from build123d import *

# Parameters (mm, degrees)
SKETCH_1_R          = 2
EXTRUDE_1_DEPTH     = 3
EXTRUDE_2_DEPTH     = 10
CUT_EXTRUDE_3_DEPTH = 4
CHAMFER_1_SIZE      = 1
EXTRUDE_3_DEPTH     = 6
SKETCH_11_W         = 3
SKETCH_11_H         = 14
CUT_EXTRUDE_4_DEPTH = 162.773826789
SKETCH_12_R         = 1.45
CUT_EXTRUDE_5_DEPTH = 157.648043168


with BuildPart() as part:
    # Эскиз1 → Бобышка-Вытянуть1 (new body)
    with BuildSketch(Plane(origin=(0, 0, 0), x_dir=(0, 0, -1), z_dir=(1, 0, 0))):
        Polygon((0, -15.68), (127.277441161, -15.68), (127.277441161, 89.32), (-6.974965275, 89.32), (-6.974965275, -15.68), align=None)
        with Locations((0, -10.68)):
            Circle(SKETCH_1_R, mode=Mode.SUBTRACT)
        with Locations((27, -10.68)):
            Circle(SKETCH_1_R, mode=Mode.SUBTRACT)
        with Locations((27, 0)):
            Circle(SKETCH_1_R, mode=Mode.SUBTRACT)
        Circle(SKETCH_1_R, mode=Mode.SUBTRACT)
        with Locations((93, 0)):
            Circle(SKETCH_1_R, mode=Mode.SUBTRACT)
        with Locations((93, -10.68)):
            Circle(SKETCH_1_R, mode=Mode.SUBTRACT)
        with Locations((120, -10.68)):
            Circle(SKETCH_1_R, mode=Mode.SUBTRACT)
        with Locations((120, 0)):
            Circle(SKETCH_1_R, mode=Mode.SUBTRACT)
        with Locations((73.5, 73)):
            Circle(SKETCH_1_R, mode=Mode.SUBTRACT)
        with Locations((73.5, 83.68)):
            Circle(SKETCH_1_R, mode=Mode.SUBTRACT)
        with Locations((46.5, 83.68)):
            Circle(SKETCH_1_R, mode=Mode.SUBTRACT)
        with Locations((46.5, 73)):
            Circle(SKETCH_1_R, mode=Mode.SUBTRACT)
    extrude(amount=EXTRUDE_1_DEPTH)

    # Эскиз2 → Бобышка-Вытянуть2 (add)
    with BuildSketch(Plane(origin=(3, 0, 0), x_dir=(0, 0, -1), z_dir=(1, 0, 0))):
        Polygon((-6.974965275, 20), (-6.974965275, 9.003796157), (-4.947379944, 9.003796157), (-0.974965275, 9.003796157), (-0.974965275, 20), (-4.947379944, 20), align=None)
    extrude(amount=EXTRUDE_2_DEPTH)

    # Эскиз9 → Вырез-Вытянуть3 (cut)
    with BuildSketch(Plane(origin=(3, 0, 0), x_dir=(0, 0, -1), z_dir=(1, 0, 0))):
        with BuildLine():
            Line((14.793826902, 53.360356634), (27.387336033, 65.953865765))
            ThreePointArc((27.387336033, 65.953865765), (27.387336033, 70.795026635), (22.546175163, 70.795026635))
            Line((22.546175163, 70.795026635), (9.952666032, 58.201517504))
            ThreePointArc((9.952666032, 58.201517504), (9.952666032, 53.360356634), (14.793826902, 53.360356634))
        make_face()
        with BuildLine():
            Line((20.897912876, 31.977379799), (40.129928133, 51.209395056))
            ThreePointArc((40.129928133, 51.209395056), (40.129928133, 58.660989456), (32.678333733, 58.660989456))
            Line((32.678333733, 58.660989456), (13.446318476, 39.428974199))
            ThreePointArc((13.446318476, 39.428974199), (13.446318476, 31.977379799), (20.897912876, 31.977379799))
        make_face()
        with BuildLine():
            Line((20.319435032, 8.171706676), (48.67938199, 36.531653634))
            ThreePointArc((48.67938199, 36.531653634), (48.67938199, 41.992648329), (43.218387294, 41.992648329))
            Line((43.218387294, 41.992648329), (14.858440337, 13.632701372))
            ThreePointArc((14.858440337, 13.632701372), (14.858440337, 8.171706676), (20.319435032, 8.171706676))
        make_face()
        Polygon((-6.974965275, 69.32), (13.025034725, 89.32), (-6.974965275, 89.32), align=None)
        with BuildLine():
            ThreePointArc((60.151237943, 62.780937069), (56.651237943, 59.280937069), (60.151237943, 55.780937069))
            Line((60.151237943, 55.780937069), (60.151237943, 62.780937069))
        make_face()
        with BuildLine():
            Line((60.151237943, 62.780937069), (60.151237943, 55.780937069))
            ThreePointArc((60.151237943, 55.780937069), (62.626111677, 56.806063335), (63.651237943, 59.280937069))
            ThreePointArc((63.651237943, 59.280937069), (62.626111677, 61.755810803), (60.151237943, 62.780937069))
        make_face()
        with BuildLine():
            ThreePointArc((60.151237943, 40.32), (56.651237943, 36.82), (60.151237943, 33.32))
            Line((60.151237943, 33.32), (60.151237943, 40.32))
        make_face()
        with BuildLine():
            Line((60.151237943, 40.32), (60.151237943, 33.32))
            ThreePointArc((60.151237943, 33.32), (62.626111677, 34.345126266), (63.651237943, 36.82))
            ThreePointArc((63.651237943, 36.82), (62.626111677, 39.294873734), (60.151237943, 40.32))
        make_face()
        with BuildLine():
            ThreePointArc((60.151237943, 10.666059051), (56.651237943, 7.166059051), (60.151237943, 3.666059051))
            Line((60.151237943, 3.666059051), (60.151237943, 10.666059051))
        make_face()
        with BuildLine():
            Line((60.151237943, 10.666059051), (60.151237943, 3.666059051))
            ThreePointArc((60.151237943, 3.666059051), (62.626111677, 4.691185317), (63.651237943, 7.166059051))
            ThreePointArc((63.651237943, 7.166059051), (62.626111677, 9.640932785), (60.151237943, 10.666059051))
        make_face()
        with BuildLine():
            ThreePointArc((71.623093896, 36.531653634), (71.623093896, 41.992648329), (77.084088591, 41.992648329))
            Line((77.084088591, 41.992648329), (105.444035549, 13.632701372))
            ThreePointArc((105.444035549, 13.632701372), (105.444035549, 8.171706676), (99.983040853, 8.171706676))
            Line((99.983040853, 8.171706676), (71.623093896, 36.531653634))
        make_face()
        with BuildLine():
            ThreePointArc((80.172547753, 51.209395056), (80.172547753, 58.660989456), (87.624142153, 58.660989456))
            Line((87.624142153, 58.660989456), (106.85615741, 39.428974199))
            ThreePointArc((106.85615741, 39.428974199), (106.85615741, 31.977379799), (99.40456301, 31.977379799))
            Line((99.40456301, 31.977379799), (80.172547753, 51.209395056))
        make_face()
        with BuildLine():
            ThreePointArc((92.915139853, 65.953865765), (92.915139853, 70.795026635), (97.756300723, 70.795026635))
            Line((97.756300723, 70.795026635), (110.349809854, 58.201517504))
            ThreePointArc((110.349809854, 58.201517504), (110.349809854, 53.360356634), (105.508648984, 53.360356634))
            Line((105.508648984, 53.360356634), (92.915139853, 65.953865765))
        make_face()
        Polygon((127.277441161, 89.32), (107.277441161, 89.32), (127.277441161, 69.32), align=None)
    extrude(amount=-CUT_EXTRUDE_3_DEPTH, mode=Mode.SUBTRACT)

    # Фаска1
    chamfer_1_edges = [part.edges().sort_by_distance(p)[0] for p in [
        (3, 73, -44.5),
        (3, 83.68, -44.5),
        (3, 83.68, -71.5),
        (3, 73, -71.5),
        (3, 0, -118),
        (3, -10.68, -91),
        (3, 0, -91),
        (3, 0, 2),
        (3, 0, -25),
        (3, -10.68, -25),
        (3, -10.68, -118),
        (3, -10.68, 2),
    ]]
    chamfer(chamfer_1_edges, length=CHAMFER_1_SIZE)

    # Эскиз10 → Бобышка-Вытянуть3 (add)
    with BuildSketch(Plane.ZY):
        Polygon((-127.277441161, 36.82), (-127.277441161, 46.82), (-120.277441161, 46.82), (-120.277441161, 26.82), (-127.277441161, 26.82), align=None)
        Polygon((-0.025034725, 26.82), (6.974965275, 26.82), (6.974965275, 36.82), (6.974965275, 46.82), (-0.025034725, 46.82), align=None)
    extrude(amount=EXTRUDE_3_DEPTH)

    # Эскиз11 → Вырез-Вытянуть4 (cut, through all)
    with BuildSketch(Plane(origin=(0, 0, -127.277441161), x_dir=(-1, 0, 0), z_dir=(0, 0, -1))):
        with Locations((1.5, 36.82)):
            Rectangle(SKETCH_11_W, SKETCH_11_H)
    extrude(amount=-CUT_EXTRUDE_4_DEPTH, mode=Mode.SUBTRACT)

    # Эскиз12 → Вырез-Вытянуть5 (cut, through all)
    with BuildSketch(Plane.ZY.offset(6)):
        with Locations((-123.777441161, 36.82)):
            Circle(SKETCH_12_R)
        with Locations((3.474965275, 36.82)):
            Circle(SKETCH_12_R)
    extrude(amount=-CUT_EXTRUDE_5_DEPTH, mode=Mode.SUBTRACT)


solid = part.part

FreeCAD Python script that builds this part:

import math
import FreeCAD as App
import Part
import Sketcher
from FreeCAD import Vector
Q = App.Units.Quantity


def edges_at(feature, points):
    """Names of the edges that pass closest to the given points."""
    edges = feature.Shape.Edges
    near = lambda p: min(range(len(edges)), key=lambda i: edges[i].distToShape(Part.Vertex(*p))[0])
    return sorted({f"Edge{near(p) + 1}" for p in points})

doc = App.newDocument("Part")
body = doc.addObject("PartDesign::Body", "Body")

# Sketch on YZ plane
sketch1 = body.newObject("Sketcher::SketchObject", "Sketch")
sketch1.AttachmentSupport = (doc.getObject("YZ_Plane"), [""])
sketch1.MapMode = "FlatFace"
sketch1.addGeometry([
    Part.LineSegment(Vector(-15.7, -127.3, 0), Vector(89.3, -127.3, 0)),  # 0
    Part.LineSegment(Vector(89.3, -127.3, 0), Vector(89.3, 7, 0)),  # 1
    Part.LineSegment(Vector(89.3, 7, 0), Vector(-15.7, 7, 0)),  # 2
    Part.LineSegment(Vector(-15.7, 7, 0), Vector(-15.7, -127.3, 0)),  # 3
    Part.Circle(Vector(-10.7, 0, 0), Vector(0, 0, 1), 2),  # 4
    Part.Circle(Vector(-10.7, -27, 0), Vector(0, 0, 1), 2),  # 5
    Part.Circle(Vector(0, 0, 0), Vector(0, 0, 1), 2),  # 6
    Part.Circle(Vector(0, -27, 0), Vector(0, 0, 1), 2),  # 7
    Part.Circle(Vector(-10.7, -93, 0), Vector(0, 0, 1), 2),  # 8
    Part.Circle(Vector(-10.7, -120, 0), Vector(0, 0, 1), 2),  # 9
    Part.Circle(Vector(0, -93, 0), Vector(0, 0, 1), 2),  # 10
    Part.Circle(Vector(0, -120, 0), Vector(0, 0, 1), 2),  # 11
    Part.Circle(Vector(73, -46.5, 0), Vector(0, 0, 1), 2),  # 12
    Part.Circle(Vector(83.7, -46.5, 0), Vector(0, 0, 1), 2),  # 13
    Part.Circle(Vector(73, -73.5, 0), Vector(0, 0, 1), 2),  # 14
    Part.Circle(Vector(83.7, -73.5, 0), Vector(0, 0, 1), 2),  # 15
], False)
sketch1.addConstraint([
    Sketcher.Constraint("Coincident", 0, 2, 1, 1),
    Sketcher.Constraint("Coincident", 1, 2, 2, 1),
    Sketcher.Constraint("Coincident", 2, 2, 3, 1),
    Sketcher.Constraint("Coincident", 3, 2, 0, 1),
    Sketcher.Constraint("Horizontal", 0),
    Sketcher.Constraint("Vertical", 1),
    Sketcher.Constraint("Horizontal", 2),
    Sketcher.Constraint("Vertical", 3),
    Sketcher.Constraint("Coincident", 6, 3, -1, 1),
    Sketcher.Constraint("Equal", 4, 5),
    Sketcher.Constraint("Equal", 5, 6),
    Sketcher.Constraint("Equal", 6, 7),
    Sketcher.Constraint("Equal", 7, 8),
    Sketcher.Constraint("Equal", 8, 9),
    Sketcher.Constraint("Equal", 9, 10),
    Sketcher.Constraint("Equal", 10, 11),
    Sketcher.Constraint("Equal", 11, 12),
    Sketcher.Constraint("Equal", 12, 13),
    Sketcher.Constraint("Equal", 13, 14),
    Sketcher.Constraint("Equal", 14, 15),
    Sketcher.Constraint("PointOnObject", 4, 3, -1),
    Sketcher.Constraint("PointOnObject", 7, 3, -2),
    Sketcher.Constraint("PointOnObject", 10, 3, -2),
    Sketcher.Constraint("PointOnObject", 11, 3, -2),
    Sketcher.Constraint("Horizontal", 5, 3, 7, 3),
    Sketcher.Constraint("Horizontal", 8, 3, 10, 3),
    Sketcher.Constraint("Horizontal", 9, 3, 11, 3),
    Sketcher.Constraint("Horizontal", 12, 3, 13, 3),
    Sketcher.Constraint("Horizontal", 14, 3, 15, 3),
    Sketcher.Constraint("Vertical", 4, 3, 5, 3),
    Sketcher.Constraint("Vertical", 5, 3, 8, 3),
    Sketcher.Constraint("Vertical", 8, 3, 9, 3),
    Sketcher.Constraint("Vertical", 12, 3, 14, 3),
    Sketcher.Constraint("Vertical", 13, 3, 15, 3),
    Sketcher.Constraint("Diameter", 4, Q("4 mm")),
    Sketcher.Constraint("DistanceX", 0, 1, 0, 2, Q("105 mm")),
    Sketcher.Constraint("DistanceY", 5, 3, -1, 1, Q("27 mm")),
    Sketcher.Constraint("DistanceY", 8, 3, -1, 1, Q("93 mm")),
    Sketcher.Constraint("DistanceY", 9, 3, -1, 1, Q("120 mm")),
    Sketcher.Constraint("DistanceX", -1, 1, 12, 3, Q("73 mm")),
    Sketcher.Constraint("DistanceY", 14, 3, 12, 3, Q("27 mm")),
    Sketcher.Constraint("DistanceX", 2, 2, 4, 3, Q("5 mm")),
    Sketcher.Constraint("DistanceY", 12, 3, -1, 1, Q("46.5 mm")),
    Sketcher.Constraint("DistanceX", 4, 3, -1, 1, Q("10.68 mm")),
    Sketcher.Constraint("DistanceX", -1, 1, 13, 3, Q("83.68 mm")),
    Sketcher.Constraint("DistanceY", 1, 1, 1, 2, Q("134.252406 mm")),
    Sketcher.Constraint("DistanceY", 0, 2, -1, 1, Q("127.277441 mm")),
])
pad1 = body.newObject("PartDesign::Pad", "Pad")
pad1.Profile = sketch1
pad1.Length = 3

# Sketch on YZ plane
sketch2 = body.newObject("Sketcher::SketchObject", "Sketch001")
sketch2.AttachmentSupport = (doc.getObject("YZ_Plane"), [""])
sketch2.MapMode = "FlatFace"
sketch2.AttachmentOffset = App.Placement(Vector(0, 0, 3), App.Rotation())
sketch2.addGeometry([
    Part.LineSegment(Vector(20, 7, 0), Vector(9, 7, 0)),
    Part.LineSegment(Vector(9, 7, 0), Vector(9, 1, 0)),
    Part.LineSegment(Vector(9, 1, 0), Vector(20, 1, 0)),
    Part.LineSegment(Vector(20, 1, 0), Vector(20, 7, 0)),
], False)
sketch2.addConstraint([
    Sketcher.Constraint("Coincident", 0, 2, 1, 1),
    Sketcher.Constraint("Coincident", 1, 2, 2, 1),
    Sketcher.Constraint("Coincident", 2, 2, 3, 1),
    Sketcher.Constraint("Coincident", 3, 2, 0, 1),
    Sketcher.Constraint("Horizontal", 0),
    Sketcher.Constraint("Vertical", 1),
    Sketcher.Constraint("Horizontal", 2),
    Sketcher.Constraint("Vertical", 3),
    Sketcher.Constraint("DistanceY", 1, 2, 1, 1, Q("6 mm")),
    Sketcher.Constraint("DistanceX", -1, 1, 2, 2, Q("20 mm")),
    Sketcher.Constraint("DistanceX", 0, 2, 0, 1, Q("10.996204 mm")),
    Sketcher.Constraint("DistanceY", -1, 1, 0, 2, Q("6.974965 mm")),
])
pad2 = body.newObject("PartDesign::Pad", "Pad001")
pad2.Profile = sketch2
pad2.Length = 10

# Sketch on YZ plane
sketch3 = body.newObject("Sketcher::SketchObject", "Sketch002")
sketch3.AttachmentSupport = (doc.getObject("YZ_Plane"), [""])
sketch3.MapMode = "FlatFace"
sketch3.AttachmentOffset = App.Placement(Vector(0, 0, 3), App.Rotation())
sketch3.addGeometry([
    Part.LineSegment(Vector(53.4, -14.8, 0), Vector(66, -27.4, 0)),  # 0
    Part.ArcOfCircle(Part.Circle(Vector(68.4, -25, 0), Vector(0, 0, 1), 3.4), math.radians(-135), math.radians(45)),  # 1
    Part.LineSegment(Vector(70.8, -22.5, 0), Vector(58.2, -10, 0)),  # 2
    Part.ArcOfCircle(Part.Circle(Vector(55.8, -12.4, 0), Vector(0, 0, 1), 3.4), math.radians(45), math.radians(225)),  # 3
    Part.LineSegment(Vector(32, -20.9, 0), Vector(51.2, -40.1, 0)),  # 4
    Part.ArcOfCircle(Part.Circle(Vector(54.9, -36.4, 0), Vector(0, 0, 1), 5.3), math.radians(-135), math.radians(45)),  # 5
    Part.LineSegment(Vector(58.7, -32.7, 0), Vector(39.4, -13.4, 0)),  # 6
    Part.ArcOfCircle(Part.Circle(Vector(35.7, -17.2, 0), Vector(0, 0, 1), 5.3), math.radians(45), math.radians(225)),  # 7
    Part.LineSegment(Vector(8.2, -20.3, 0), Vector(36.5, -48.7, 0)),  # 8
    Part.ArcOfCircle(Part.Circle(Vector(39.3, -45.9, 0), Vector(0, 0, 1), 3.9), math.radians(-135), math.radians(45)),  # 9
    Part.LineSegment(Vector(42, -43.2, 0), Vector(13.6, -14.9, 0)),  # 10
    Part.ArcOfCircle(Part.Circle(Vector(10.9, -17.6, 0), Vector(0, 0, 1), 3.9), math.radians(45), math.radians(225)),  # 11
    Part.LineSegment(Vector(69.3, 7, 0), Vector(89.3, -13, 0)),  # 12
    Part.LineSegment(Vector(89.3, -13, 0), Vector(89.3, 7, 0)),  # 13
    Part.LineSegment(Vector(89.3, 7, 0), Vector(69.3, 7, 0)),  # 14
    Part.ArcOfCircle(Part.Circle(Vector(59.3, -60.2, 0), Vector(0, 0, 1), 3.5), math.radians(0), math.radians(180)),  # 15
    Part.ArcOfCircle(Part.Circle(Vector(59.3, -60.2, 0), Vector(0, 0, 1), 3.5), math.radians(-180), math.radians(-90)),  # 16
    Part.ArcOfCircle(Part.Circle(Vector(59.3, -60.2, 0), Vector(0, 0, 1), 3.5), math.radians(-90), math.radians(0)),  # 17
    Part.ArcOfCircle(Part.Circle(Vector(36.8, -60.2, 0), Vector(0, 0, 1), 3.5), math.radians(0), math.radians(180)),  # 18
    Part.ArcOfCircle(Part.Circle(Vector(36.8, -60.2, 0), Vector(0, 0, 1), 3.5), math.radians(-180), math.radians(-90)),  # 19
    Part.ArcOfCircle(Part.Circle(Vector(36.8, -60.2, 0), Vector(0, 0, 1), 3.5), math.radians(-90), math.radians(0)),  # 20
    Part.ArcOfCircle(Part.Circle(Vector(7.2, -60.2, 0), Vector(0, 0, 1), 3.5), math.radians(0), math.radians(180)),  # 21
    Part.ArcOfCircle(Part.Circle(Vector(7.2, -60.2, 0), Vector(0, 0, 1), 3.5), math.radians(-180), math.radians(-90)),  # 22
    Part.ArcOfCircle(Part.Circle(Vector(7.2, -60.2, 0), Vector(0, 0, 1), 3.5), math.radians(-90), math.radians(0)),  # 23
    Part.ArcOfCircle(Part.Circle(Vector(39.3, -74.4, 0), Vector(0, 0, 1), 3.9), math.radians(-45), math.radians(135)),  # 24
    Part.LineSegment(Vector(36.5, -71.6, 0), Vector(8.2, -100, 0)),  # 25
    Part.ArcOfCircle(Part.Circle(Vector(10.9, -102.7, 0), Vector(0, 0, 1), 3.9), math.radians(135), math.radians(315)),  # 26
    Part.LineSegment(Vector(13.6, -105.4, 0), Vector(42, -77.1, 0)),  # 27
    Part.ArcOfCircle(Part.Circle(Vector(54.9, -83.9, 0), Vector(0, 0, 1), 5.3), math.radians(-45), math.radians(135)),  # 28
    Part.LineSegment(Vector(51.2, -80.2, 0), Vector(32, -99.4, 0)),  # 29
    Part.ArcOfCircle(Part.Circle(Vector(35.7, -103.1, 0), Vector(0, 0, 1), 5.3), math.radians(135), math.radians(315)),  # 30
    Part.LineSegment(Vector(39.4, -106.9, 0), Vector(58.7, -87.6, 0)),  # 31
    Part.ArcOfCircle(Part.Circle(Vector(68.4, -95.3, 0), Vector(0, 0, 1), 3.4), math.radians(-45), math.radians(135)),  # 32
    Part.LineSegment(Vector(66, -92.9, 0), Vector(53.4, -105.5, 0)),  # 33
    Part.ArcOfCircle(Part.Circle(Vector(55.8, -107.9, 0), Vector(0, 0, 1), 3.4), math.radians(135), math.radians(315)),  # 34
    Part.LineSegment(Vector(58.2, -110.3, 0), Vector(70.8, -97.8, 0)),  # 35
    Part.LineSegment(Vector(89.3, -127.3, 0), Vector(89.3, -107.3, 0)),  # 36
    Part.LineSegment(Vector(89.3, -107.3, 0), Vector(69.3, -127.3, 0)),  # 37
    Part.LineSegment(Vector(69.3, -127.3, 0), Vector(89.3, -127.3, 0)),  # 38
], False)
sketch3.addConstraint([
    Sketcher.Constraint("Tangent", 0, 2, 1, 1),
    Sketcher.Constraint("Tangent", 1, 2, 2, 1),
    Sketcher.Constraint("Tangent", 2, 2, 3, 1),
    Sketcher.Constraint("Tangent", 3, 2, 0, 1),
    Sketcher.Constraint("Tangent", 4, 2, 5, 1),
    Sketcher.Constraint("Tangent", 5, 2, 6, 1),
    Sketcher.Constraint("Tangent", 6, 2, 7, 1),
    Sketcher.Constraint("Tangent", 7, 2, 4, 1),
    Sketcher.Constraint("Tangent", 8, 2, 9, 1),
    Sketcher.Constraint("Tangent", 9, 2, 10, 1),
    Sketcher.Constraint("Tangent", 10, 2, 11, 1),
    Sketcher.Constraint("Tangent", 11, 2, 8, 1),
    Sketcher.Constraint("Coincident", 12, 2, 13, 1),
    Sketcher.Constraint("Coincident", 13, 2, 14, 1),
    Sketcher.Constraint("Coincident", 14, 2, 12, 1),
    Sketcher.Constraint("Tangent", 15, 2, 16, 1),
    Sketcher.Constraint("Tangent", 16, 2, 17, 1),
    Sketcher.Constraint("Tangent", 17, 2, 15, 1),
    Sketcher.Constraint("Tangent", 18, 2, 19, 1),
    Sketcher.Constraint("Tangent", 19, 2, 20, 1),
    Sketcher.Constraint("Tangent", 20, 2, 18, 1),
    Sketcher.Constraint("Tangent", 21, 2, 22, 1),
    Sketcher.Constraint("Tangent", 22, 2, 23, 1),
    Sketcher.Constraint("Tangent", 23, 2, 21, 1),
    Sketcher.Constraint("Tangent", 24, 2, 25, 1),
    Sketcher.Constraint("Tangent", 25, 2, 26, 1),
    Sketcher.Constraint("Tangent", 26, 2, 27, 1),
    Sketcher.Constraint("Tangent", 27, 2, 24, 1),
    Sketcher.Constraint("Tangent", 28, 2, 29, 1),
    Sketcher.Constraint("Tangent", 29, 2, 30, 1),
    Sketcher.Constraint("Tangent", 30, 2, 31, 1),
    Sketcher.Constraint("Tangent", 31, 2, 28, 1),
    Sketcher.Constraint("Tangent", 32, 2, 33, 1),
    Sketcher.Constraint("Tangent", 33, 2, 34, 1),
    Sketcher.Constraint("Tangent", 34, 2, 35, 1),
    Sketcher.Constraint("Tangent", 35, 2, 32, 1),
    Sketcher.Constraint("Coincident", 36, 2, 37, 1),
    Sketcher.Constraint("Coincident", 37, 2, 38, 1),
    Sketcher.Constraint("Coincident", 38, 2, 36, 1),
    Sketcher.Constraint("Vertical", 13),
    Sketcher.Constraint("Horizontal", 14),
    Sketcher.Constraint("Vertical", 36),
    Sketcher.Constraint("Horizontal", 38),
    Sketcher.Constraint("Equal", 1, 3),
    Sketcher.Constraint("Equal", 5, 7),
    Sketcher.Constraint("Equal", 9, 11),
    Sketcher.Constraint("Equal", 17, 18),
    Sketcher.Constraint("Equal", 20, 21),
    Sketcher.Constraint("Equal", 11, 24),
    Sketcher.Constraint("Equal", 24, 26),
    Sketcher.Constraint("Equal", 7, 28),
    Sketcher.Constraint("Equal", 28, 30),
    Sketcher.Constraint("Equal", 3, 32),
    Sketcher.Constraint("Equal", 32, 34),
    Sketcher.Constraint("Parallel", 2, 4),
    Sketcher.Constraint("Parallel", 6, 8),
    Sketcher.Constraint("Parallel", 10, 12),
    Sketcher.Constraint("Perpendicular", 12, 25),
    Sketcher.Constraint("Parallel", 27, 29),
    Sketcher.Constraint("Parallel", 31, 33),
    Sketcher.Constraint("Parallel", 35, 37),
    Sketcher.Constraint("Horizontal", 17, 3, 18, 3),
    Sketcher.Constraint("Horizontal", 20, 3, 21, 3),
    Sketcher.Constraint("Horizontal", 23, 3, 15, 2),
    Sketcher.Constraint("Horizontal", 15, 2, 17, 2),
    Sketcher.Constraint("Horizontal", 17, 2, 18, 2),
    Sketcher.Constraint("Horizontal", 18, 2, 20, 2),
    Sketcher.Constraint("Horizontal", 20, 2, 21, 2),
    Sketcher.Constraint("Horizontal", 21, 2, 23, 2),
    Sketcher.Constraint("Vertical", 9, 3, 24, 3),
    Sketcher.Constraint("Vertical", 11, 3, 26, 3),
    Sketcher.Constraint("Vertical", 5, 3, 28, 3),
    Sketcher.Constraint("Vertical", 7, 3, 30, 3),
    Sketcher.Constraint("Vertical", 1, 3, 32, 3),
    Sketcher.Constraint("Vertical", 3, 3, 34, 3),
    Sketcher.Constraint("Vertical", 34, 3, 15, 2),
    Sketcher.Constraint("Vertical", 17, 3, 16, 2),
    Sketcher.Constraint("Vertical", 20, 3, 19, 2),
    Sketcher.Constraint("Vertical", 23, 3, 22, 2),
    Sketcher.Constraint("Vertical", 8, 2, 24, 2),
    Sketcher.Constraint("Vertical", 13, 2, 36, 2),
    Sketcher.Constraint("Vertical", 14, 2, 37, 2),
    Sketcher.Constraint("Radius", 15, Q("3.5 mm")),
    Sketcher.Constraint("DistanceX", 14, 2, 14, 1, Q("20 mm")),
    Sketcher.Constraint("DistanceX", -1, 1, 18, 3, Q("36.82 mm")),
    Sketcher.Constraint("DistanceX", -1, 1, 12, 2, Q("89.32 mm")),
    Sketcher.Constraint("Radius", 1, Q("3.423218 mm")),
    Sketcher.Constraint("Radius", 5, Q("5.269073 mm")),
    Sketcher.Constraint("Radius", 9, Q("3.861506 mm")),
    Sketcher.Constraint("DistanceX", -1, 1, 10, 2, Q("13.632701 mm")),
    Sketcher.Constraint("DistanceY", 35, 2, -1, 1, Q("97.756301 mm")),
    Sketcher.Constraint("DistanceY", 21, 3, 11, 3, Q("42.5623 mm")),
    Sketcher.Constraint("DistanceY", 26, 3, 21, 3, Q("42.5623 mm")),
    Sketcher.Constraint("DistanceY", 0, 2, 12, 2, Q("14.362301 mm")),
    Sketcher.Constraint("DistanceY", 36, 2, 32, 2, Q("14.362301 mm")),
    Sketcher.Constraint("Distance", 0, Q("17.809911 mm")),
    Sketcher.Constraint("Distance", 8, Q("40.107022 mm")),
    Sketcher.Constraint("DistanceY", 5, 3, -1, 1, Q("36.404131 mm")),
    Sketcher.Constraint("DistanceX", -1, 1, 21, 3, Q("7.166059 mm")),
    Sketcher.Constraint("DistanceY", 24, 3, -1, 1, Q("74.353591 mm")),
    Sketcher.Constraint("DistanceY", 30, 3, -1, 1, Q("103.13036 mm")),
    Sketcher.Constraint("DistanceX", -1, 1, 5, 2, Q("58.660989 mm")),
    Sketcher.Constraint("DistanceY", 6, 2, -1, 1, Q("13.446318 mm")),
    Sketcher.Constraint("DistanceX", 7, 3, 3, 3, Q("20.07776 mm")),
    Sketcher.Constraint("DistanceY", 7, 3, 3, 3, Q("4.798869 mm")),
])
pocket1 = body.newObject("PartDesign::Pocket", "Pocket")
pocket1.Profile = sketch3
pocket1.Length = 4
doc.recompute()

chamfer = body.newObject("PartDesign::Chamfer", "Chamfer")
chamfer.Base = (pocket1, edges_at(pocket1, [
    (3, 73, -44.5),
    (3, 83.68, -44.5),
    (3, 83.68, -71.5),
    (3, 73, -71.5),
    (3, 0, -118),
    (3, -10.68, -91),
    (3, 0, -91),
    (3, 0, 2),
    (3, 0, -25),
    (3, -10.68, -25),
    (3, -10.68, -118),
    (3, -10.68, 2),
]))
chamfer.Size = 1

# Sketch on YZ plane
sketch4 = body.newObject("Sketcher::SketchObject", "Sketch003")
sketch4.AttachmentSupport = (doc.getObject("YZ_Plane"), [""])
sketch4.MapMode = "FlatFace"
sketch4.addGeometry([
    Part.LineSegment(Vector(47, -127, 0), Vector(27, -127, 0)),  # 0
    Part.LineSegment(Vector(27, -127, 0), Vector(27, -120, 0)),  # 1
    Part.LineSegment(Vector(27, -120, 0), Vector(47, -120, 0)),  # 2
    Part.LineSegment(Vector(47, -120, 0), Vector(47, -127, 0)),  # 3
    Part.LineSegment(Vector(27, 0, 0), Vector(27, 7, 0)),  # 4
    Part.LineSegment(Vector(27, 7, 0), Vector(47, 7, 0)),  # 5
    Part.LineSegment(Vector(47, 7, 0), Vector(47, 0, 0)),  # 6
    Part.LineSegment(Vector(47, 0, 0), Vector(27, 0, 0)),  # 7
], False)
sketch4.addConstraint([
    Sketcher.Constraint("Coincident", 0, 2, 1, 1),
    Sketcher.Constraint("Coincident", 1, 2, 2, 1),
    Sketcher.Constraint("Coincident", 2, 2, 3, 1),
    Sketcher.Constraint("Coincident", 3, 2, 0, 1),
    Sketcher.Constraint("Coincident", 4, 2, 5, 1),
    Sketcher.Constraint("Coincident", 5, 2, 6, 1),
    Sketcher.Constraint("Coincident", 6, 2, 7, 1),
    Sketcher.Constraint("Coincident", 7, 2, 4, 1),
    Sketcher.Constraint("Horizontal", 0),
    Sketcher.Constraint("Vertical", 1),
    Sketcher.Constraint("Horizontal", 2),
    Sketcher.Constraint("Vertical", 3),
    Sketcher.Constraint("Vertical", 4),
    Sketcher.Constraint("Horizontal", 5),
    Sketcher.Constraint("Vertical", 6),
    Sketcher.Constraint("Horizontal", 7),
    Sketcher.Constraint("Vertical", 1, 2, 4, 2),
    Sketcher.Constraint("Vertical", 3, 2, 5, 2),
    Sketcher.Constraint("Equal", 3, 4),
    Sketcher.Constraint("DistanceX", 0, 2, 0, 1, Q("20 mm")),
    Sketcher.Constraint("DistanceY", 1, 1, 1, 2, Q("7 mm")),
    Sketcher.Constraint("DistanceX", -1, 1, 0, 2, Q("26.82 mm")),
    Sketcher.Constraint("DistanceY", 0, 2, -1, 1, Q("127.277441 mm")),
    Sketcher.Constraint("DistanceY", -1, 1, 4, 2, Q("6.974965 mm")),
])
pad3 = body.newObject("PartDesign::Pad", "Pad002")
pad3.Profile = sketch4
pad3.Length = 6
pad3.Reversed = True

# Sketch on XY plane
sketch5 = body.newObject("Sketcher::SketchObject", "Sketch004")
sketch5.AttachmentSupport = (doc.getObject("XY_Plane"), [""])
sketch5.MapMode = "FlatFace"
sketch5.AttachmentOffset = App.Placement(Vector(0, 0, -127.277441), App.Rotation())
sketch5.addGeometry([
    Part.LineSegment(Vector(0, 43.8, 0), Vector(0, 29.8, 0)),
    Part.LineSegment(Vector(0, 29.8, 0), Vector(-3, 29.8, 0)),
    Part.LineSegment(Vector(-3, 29.8, 0), Vector(-3, 43.8, 0)),
    Part.LineSegment(Vector(-3, 43.8, 0), Vector(0, 43.8, 0)),
], False)
sketch5.addConstraint([
    Sketcher.Constraint("Coincident", 0, 2, 1, 1),
    Sketcher.Constraint("Coincident", 1, 2, 2, 1),
    Sketcher.Constraint("Coincident", 2, 2, 3, 1),
    Sketcher.Constraint("Coincident", 3, 2, 0, 1),
    Sketcher.Constraint("Vertical", 0),
    Sketcher.Constraint("Horizontal", 1),
    Sketcher.Constraint("Vertical", 2),
    Sketcher.Constraint("Horizontal", 3),
    Sketcher.Constraint("PointOnObject", 0, 2, -2),
    Sketcher.Constraint("DistanceX", 1, 2, 1, 1, Q("3 mm")),
    Sketcher.Constraint("DistanceY", 0, 2, 0, 1, Q("14 mm")),
    Sketcher.Constraint("DistanceY", -1, 1, 0, 2, Q("29.82 mm")),
])
pocket2 = body.newObject("PartDesign::Pocket", "Pocket001")
pocket2.Profile = sketch5
pocket2.Type = "ThroughAll"
pocket2.Reversed = True

# Sketch on YZ plane
sketch6 = body.newObject("Sketcher::SketchObject", "Sketch005")
sketch6.AttachmentSupport = (doc.getObject("YZ_Plane"), [""])
sketch6.MapMode = "FlatFace"
sketch6.AttachmentOffset = App.Placement(Vector(0, 0, -6), App.Rotation())
sketch6.addGeometry([
    Part.Circle(Vector(36.8, -123.8, 0), Vector(0, 0, 1), 1.4),
    Part.Circle(Vector(36.8, 3.5, 0), Vector(0, 0, 1), 1.4),
], False)
sketch6.addConstraint([
    Sketcher.Constraint("Equal", 0, 1),
    Sketcher.Constraint("Vertical", 0, 3, 1, 3),
    Sketcher.Constraint("Diameter", 0, Q("2.9 mm")),
    Sketcher.Constraint("DistanceX", -1, 1, 0, 3, Q("36.82 mm")),
    Sketcher.Constraint("DistanceY", 0, 3, -1, 1, Q("123.777441 mm")),
    Sketcher.Constraint("DistanceY", -1, 1, 1, 3, Q("3.474965 mm")),
])
pocket3 = body.newObject("PartDesign::Pocket", "Pocket002")
pocket3.Profile = sketch6
pocket3.Type = "ThroughAll"
pocket3.Reversed = True

doc.recompute()
